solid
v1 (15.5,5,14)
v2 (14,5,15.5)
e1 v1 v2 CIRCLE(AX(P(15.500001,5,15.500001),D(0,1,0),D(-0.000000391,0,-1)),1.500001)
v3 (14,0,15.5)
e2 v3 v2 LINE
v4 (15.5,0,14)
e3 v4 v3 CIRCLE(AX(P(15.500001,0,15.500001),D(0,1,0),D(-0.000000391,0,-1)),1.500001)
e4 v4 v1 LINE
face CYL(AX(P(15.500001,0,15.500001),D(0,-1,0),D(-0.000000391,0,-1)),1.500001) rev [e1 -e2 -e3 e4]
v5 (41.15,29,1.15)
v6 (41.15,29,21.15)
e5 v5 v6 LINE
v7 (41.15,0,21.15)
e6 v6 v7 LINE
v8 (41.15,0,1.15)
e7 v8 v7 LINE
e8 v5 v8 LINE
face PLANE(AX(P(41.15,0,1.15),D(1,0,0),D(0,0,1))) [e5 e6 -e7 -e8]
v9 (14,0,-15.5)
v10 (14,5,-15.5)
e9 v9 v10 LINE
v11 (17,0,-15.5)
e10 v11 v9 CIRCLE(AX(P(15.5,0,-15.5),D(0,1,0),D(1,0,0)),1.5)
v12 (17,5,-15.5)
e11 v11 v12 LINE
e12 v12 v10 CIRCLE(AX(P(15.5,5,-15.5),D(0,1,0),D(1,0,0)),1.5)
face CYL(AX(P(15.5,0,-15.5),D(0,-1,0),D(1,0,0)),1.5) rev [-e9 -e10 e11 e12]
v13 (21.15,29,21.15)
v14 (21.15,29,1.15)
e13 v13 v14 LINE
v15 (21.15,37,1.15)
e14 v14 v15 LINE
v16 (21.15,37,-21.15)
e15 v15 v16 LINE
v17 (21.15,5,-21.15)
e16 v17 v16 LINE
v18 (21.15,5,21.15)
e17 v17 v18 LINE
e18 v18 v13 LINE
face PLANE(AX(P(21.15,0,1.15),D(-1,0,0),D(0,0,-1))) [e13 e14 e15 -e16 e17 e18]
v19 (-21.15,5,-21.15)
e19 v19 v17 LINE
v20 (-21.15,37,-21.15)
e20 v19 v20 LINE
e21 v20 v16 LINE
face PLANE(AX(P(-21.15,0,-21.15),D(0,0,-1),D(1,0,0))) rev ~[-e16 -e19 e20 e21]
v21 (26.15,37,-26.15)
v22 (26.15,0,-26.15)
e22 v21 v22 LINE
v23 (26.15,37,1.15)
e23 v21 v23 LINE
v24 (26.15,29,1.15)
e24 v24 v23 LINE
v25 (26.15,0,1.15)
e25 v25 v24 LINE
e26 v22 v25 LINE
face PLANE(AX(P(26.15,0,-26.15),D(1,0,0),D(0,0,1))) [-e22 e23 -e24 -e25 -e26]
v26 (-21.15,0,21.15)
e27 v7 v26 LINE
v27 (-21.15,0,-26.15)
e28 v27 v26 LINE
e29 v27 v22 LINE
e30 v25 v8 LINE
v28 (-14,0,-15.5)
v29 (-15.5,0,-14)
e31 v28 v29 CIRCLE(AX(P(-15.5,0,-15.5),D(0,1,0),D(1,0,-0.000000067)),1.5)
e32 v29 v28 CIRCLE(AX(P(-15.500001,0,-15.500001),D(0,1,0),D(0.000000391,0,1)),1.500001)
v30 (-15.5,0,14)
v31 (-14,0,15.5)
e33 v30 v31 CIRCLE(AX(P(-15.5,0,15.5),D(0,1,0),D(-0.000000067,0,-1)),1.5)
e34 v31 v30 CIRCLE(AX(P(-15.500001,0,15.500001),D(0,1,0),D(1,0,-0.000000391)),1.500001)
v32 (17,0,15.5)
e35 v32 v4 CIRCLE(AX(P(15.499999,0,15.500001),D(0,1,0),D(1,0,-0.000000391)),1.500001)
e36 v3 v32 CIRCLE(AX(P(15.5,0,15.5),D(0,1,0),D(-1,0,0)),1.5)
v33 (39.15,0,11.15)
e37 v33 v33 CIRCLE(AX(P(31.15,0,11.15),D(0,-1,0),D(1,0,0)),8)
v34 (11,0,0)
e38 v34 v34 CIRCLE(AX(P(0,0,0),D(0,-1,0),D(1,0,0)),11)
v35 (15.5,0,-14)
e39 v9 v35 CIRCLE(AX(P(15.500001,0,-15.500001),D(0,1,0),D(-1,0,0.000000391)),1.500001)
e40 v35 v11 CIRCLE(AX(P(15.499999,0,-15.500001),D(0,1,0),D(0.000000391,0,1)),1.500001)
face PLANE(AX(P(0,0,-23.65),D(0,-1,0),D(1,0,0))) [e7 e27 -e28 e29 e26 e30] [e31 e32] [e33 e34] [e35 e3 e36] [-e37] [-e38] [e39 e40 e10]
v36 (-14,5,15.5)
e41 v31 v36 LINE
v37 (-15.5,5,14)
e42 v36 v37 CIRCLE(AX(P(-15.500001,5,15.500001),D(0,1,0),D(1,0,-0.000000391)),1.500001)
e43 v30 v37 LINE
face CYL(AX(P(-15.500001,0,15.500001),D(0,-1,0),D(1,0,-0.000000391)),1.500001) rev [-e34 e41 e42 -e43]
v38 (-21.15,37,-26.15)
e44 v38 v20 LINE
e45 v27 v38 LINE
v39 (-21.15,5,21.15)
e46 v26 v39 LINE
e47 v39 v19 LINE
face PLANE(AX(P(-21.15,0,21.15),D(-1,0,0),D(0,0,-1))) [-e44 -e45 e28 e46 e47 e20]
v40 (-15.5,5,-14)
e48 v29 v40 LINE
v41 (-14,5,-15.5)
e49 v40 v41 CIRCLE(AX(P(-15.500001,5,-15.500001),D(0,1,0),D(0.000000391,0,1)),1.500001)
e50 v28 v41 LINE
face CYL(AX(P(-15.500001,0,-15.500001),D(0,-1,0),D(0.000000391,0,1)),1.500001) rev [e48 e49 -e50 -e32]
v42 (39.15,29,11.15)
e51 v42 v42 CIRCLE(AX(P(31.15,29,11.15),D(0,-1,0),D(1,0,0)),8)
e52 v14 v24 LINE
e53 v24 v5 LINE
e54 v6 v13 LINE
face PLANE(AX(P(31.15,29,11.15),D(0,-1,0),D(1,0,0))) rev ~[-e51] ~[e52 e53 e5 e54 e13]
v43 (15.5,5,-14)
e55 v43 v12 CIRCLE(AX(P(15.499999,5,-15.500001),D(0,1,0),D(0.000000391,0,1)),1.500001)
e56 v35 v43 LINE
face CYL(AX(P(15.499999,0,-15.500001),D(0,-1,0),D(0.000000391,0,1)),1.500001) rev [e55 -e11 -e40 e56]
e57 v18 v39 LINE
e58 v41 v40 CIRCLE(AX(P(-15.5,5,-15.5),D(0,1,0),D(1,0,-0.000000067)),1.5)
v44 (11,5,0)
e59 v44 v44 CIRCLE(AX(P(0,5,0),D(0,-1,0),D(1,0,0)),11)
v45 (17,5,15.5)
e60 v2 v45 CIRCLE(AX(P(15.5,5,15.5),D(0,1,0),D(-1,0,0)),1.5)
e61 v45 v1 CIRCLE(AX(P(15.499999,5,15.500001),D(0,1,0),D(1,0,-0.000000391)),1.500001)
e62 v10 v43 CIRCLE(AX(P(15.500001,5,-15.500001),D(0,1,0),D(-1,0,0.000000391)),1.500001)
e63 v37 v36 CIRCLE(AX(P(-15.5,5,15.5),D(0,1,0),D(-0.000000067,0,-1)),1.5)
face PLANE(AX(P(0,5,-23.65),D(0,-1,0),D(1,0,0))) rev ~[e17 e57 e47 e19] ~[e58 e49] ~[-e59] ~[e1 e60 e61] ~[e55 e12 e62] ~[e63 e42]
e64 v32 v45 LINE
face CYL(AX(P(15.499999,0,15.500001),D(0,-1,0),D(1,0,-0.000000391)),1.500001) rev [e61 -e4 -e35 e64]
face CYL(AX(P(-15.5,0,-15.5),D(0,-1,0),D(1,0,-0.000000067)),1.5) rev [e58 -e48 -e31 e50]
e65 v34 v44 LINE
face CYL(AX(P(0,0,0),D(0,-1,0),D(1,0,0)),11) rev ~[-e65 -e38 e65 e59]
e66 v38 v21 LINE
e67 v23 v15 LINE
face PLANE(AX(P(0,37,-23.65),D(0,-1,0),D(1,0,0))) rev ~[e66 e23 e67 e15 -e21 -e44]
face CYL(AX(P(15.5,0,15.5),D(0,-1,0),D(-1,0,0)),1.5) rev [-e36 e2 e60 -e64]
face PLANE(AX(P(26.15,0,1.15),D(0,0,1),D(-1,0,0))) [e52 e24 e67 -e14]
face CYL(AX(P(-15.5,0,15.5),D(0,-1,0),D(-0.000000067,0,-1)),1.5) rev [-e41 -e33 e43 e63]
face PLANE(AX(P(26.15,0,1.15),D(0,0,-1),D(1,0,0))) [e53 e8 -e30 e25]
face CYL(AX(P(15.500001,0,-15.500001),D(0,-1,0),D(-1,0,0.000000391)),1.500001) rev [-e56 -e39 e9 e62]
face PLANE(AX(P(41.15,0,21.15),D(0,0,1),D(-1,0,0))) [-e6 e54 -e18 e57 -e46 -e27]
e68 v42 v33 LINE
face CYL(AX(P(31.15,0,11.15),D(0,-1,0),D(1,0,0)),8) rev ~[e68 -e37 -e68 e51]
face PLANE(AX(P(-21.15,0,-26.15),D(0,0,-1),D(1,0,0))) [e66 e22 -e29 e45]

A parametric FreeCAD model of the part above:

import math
import FreeCAD as App
import Part
import Sketcher

V = App.Vector
Q = App.Units.Quantity


def add_polygon(sketch, points):
    """Adds a closed chain of lines whose ends are joined by coincident constraints."""
    first, n = sketch.GeometryCount, len(points)
    for a, b in zip(points, points[1:] + points[:1]):
        sketch.addGeometry(Part.LineSegment(App.Vector(*a, 0), App.Vector(*b, 0)), False)
    for i in range(n):
        sketch.addConstraint(Sketcher.Constraint("Coincident", first + i, 2, first + (i + 1) % n, 1))

doc = App.newDocument("Part")
body = doc.addObject("PartDesign::Body", "Body")

# Sketch on XZ plane
sketch1 = doc.addObject("Sketcher::SketchObject", "Sketch")
body.addObject(sketch1)
sketch1.AttachmentSupport = (doc.XZ_Plane, [""])
sketch1.MapMode = "FlatFace"
add_polygon(sketch1, [(-21.15, -26.15), (26.15, -26.15), (26.15, 1.15), (41.15, 1.15), (41.15, 21.15), (-21.15, 21.15)])  # lines 0-5
sketch1.addGeometry(Part.ArcOfCircle(Part.Circle(V(-15.5, -15.5, 0), V(0, 0, 1), 1.5), math.radians(90.000004), math.radians(359.999996)), False)  # 6
sketch1.addGeometry(Part.ArcOfCircle(Part.Circle(V(-15.500001, -15.500001, 0), V(0, 0, 1), 1.500001), math.radians(0.000022), math.radians(89.999978)), False)  # 7
sketch1.addGeometry(Part.Circle(V(0, 0, 0), V(0, 0, 1), 11), False)  # 8
sketch1.addGeometry(Part.ArcOfCircle(Part.Circle(V(15.5, -15.5, 0), V(0, 0, 1), 1.5), math.radians(180), math.radians(360)), False)  # 9
sketch1.addGeometry(Part.ArcOfCircle(Part.Circle(V(15.500001, -15.500001, 0), V(0, 0, 1), 1.500001), math.radians(90.000022), math.radians(179.999978)), False)  # 10
sketch1.addGeometry(Part.ArcOfCircle(Part.Circle(V(15.499999, -15.500001, 0), V(0, 0, 1), 1.500001), math.radians(0.000022), math.radians(89.999978)), False)  # 11
sketch1.addGeometry(Part.ArcOfCircle(Part.Circle(V(-15.5, 15.5, 0), V(0, 0, 1), 1.5), math.radians(0.000004), math.radians(269.999996)), False)  # 12
sketch1.addGeometry(Part.ArcOfCircle(Part.Circle(V(-15.500001, 15.500001, 0), V(0, 0, 1), 1.500001), math.radians(-89.999978), math.radians(-0.000022)), False)  # 13
sketch1.addGeometry(Part.ArcOfCircle(Part.Circle(V(15.499999, 15.500001, 0), V(0, 0, 1), 1.500001), math.radians(-89.999978), math.radians(-0.000022)), False)  # 14
sketch1.addGeometry(Part.ArcOfCircle(Part.Circle(V(15.500001, 15.500001, 0), V(0, 0, 1), 1.500001), math.radians(-179.999978), math.radians(-90.000022)), False)  # 15
sketch1.addGeometry(Part.ArcOfCircle(Part.Circle(V(15.5, 15.5, 0), V(0, 0, 1), 1.5), math.radians(0), math.radians(180)), False)  # 16
sketch1.addGeometry(Part.Circle(V(31.15, 11.15, 0), V(0, 0, 1), 8), False)  # 17
sketch1.addConstraint([
    Sketcher.Constraint("Tangent", 6, 1, 7, 2),
    Sketcher.Constraint("Coincident", 7, 1, 6, 2),
    Sketcher.Constraint("Tangent", 9, 1, 10, 2),
    Sketcher.Constraint("Tangent", 10, 1, 11, 2),
    Sketcher.Constraint("Tangent", 11, 1, 9, 2),
    Sketcher.Constraint("Tangent", 12, 1, 13, 2),
    Sketcher.Constraint("Coincident", 13, 1, 12, 2),
    Sketcher.Constraint("Tangent", 14, 1, 15, 2),
    Sketcher.Constraint("Tangent", 15, 1, 16, 2),
    Sketcher.Constraint("Tangent", 16, 1, 14, 2),
    Sketcher.Constraint("Horizontal", 0),
    Sketcher.Constraint("Vertical", 1),
    Sketcher.Constraint("Horizontal", 2),
    Sketcher.Constraint("Vertical", 3),
    Sketcher.Constraint("Horizontal", 4),
    Sketcher.Constraint("Vertical", 5),
    Sketcher.Constraint("Coincident", 8, 3, -1, 1),
    Sketcher.Constraint("Equal", 7, 9),
    Sketcher.Constraint("Equal", 11, 12),
    Sketcher.Constraint("Equal", 13, 14),
    Sketcher.Constraint("Symmetric", 9, 3, 12, 3, -1, 1),
    Sketcher.Constraint("Symmetric", 6, 3, 14, 3, -1, 1),
    Sketcher.Constraint("Symmetric", 6, 3, 9, 3, -2),
    Sketcher.Constraint("Horizontal", 11, 3, 7, 1),
    Sketcher.Constraint("Horizontal", 7, 1, 9, 1),
    Sketcher.Constraint("Horizontal", 9, 1, 11, 1),
    Sketcher.Constraint("Horizontal", 16, 3, 12, 1),
    Sketcher.Constraint("Horizontal", 12, 1, 15, 1),
    Sketcher.Constraint("Horizontal", 15, 1, 16, 1),
    Sketcher.Constraint("Vertical", 13, 3, 6, 1),
    Sketcher.Constraint("Vertical", 16, 3, 10, 1),
    Sketcher.Constraint("Vertical", 6, 1, 13, 1),
    Sketcher.Constraint("Vertical", 10, 1, 14, 1),
    Sketcher.Constraint("Equal", 0, 5),
    Sketcher.Constraint("Diameter", 8, Q("22 mm")),
    Sketcher.Constraint("Diameter", 17, Q("16 mm")),
    Sketcher.Constraint("Radius", 6, Q("1.5 mm")),
    Sketcher.Constraint("DistanceX", 2, 1, 2, 2, Q("15 mm")),
    Sketcher.Constraint("DistanceY", 3, 1, 3, 2, Q("20 mm")),
    Sketcher.Constraint("DistanceX", 0, 1, 0, 2, Q("47.3 mm")),
    Sketcher.Constraint("DistanceY", 6, 1, -1, 1, Q("14 mm")),
    Sketcher.Constraint("DistanceX", 7, 1, -1, 1, Q("14 mm")),
    Sketcher.Constraint("DistanceX", 0, 2, 17, 3, Q("5 mm")),
    Sketcher.Constraint("DistanceY", 1, 2, 17, 3, Q("10 mm")),
    Sketcher.Constraint("DistanceX", -1, 1, 17, 3, Q("31.15 mm")),
    Sketcher.Constraint("DistanceY", -1, 1, 17, 3, Q("11.15 mm")),
])
pad1 = doc.addObject("PartDesign::Pad", "Pad")
body.addObject(pad1)
pad1.Profile = sketch1
pad1.Length = 5
pad1.Reversed = True

# Sketch on XZ plane
sketch2 = doc.addObject("Sketcher::SketchObject", "Sketch001")
body.addObject(sketch2)
sketch2.AttachmentSupport = (doc.XZ_Plane, [""])
sketch2.MapMode = "FlatFace"
add_polygon(sketch2, [(-21.15, -21.15), (-21.15, -26.15), (26.15, -26.15), (26.15, 1.15), (21.15, 1.15), (21.15, -21.15)])  # lines 0-5
sketch2.addConstraint([
    Sketcher.Constraint("Vertical", 0),
    Sketcher.Constraint("Horizontal", 1),
    Sketcher.Constraint("Vertical", 2),
    Sketcher.Constraint("Horizontal", 3),
    Sketcher.Constraint("Vertical", 4),
    Sketcher.Constraint("Horizontal", 5),
    Sketcher.Constraint("Equal", 3, 0),
    Sketcher.Constraint("DistanceX", 3, 2, 3, 1, Q("5 mm")),
    Sketcher.Constraint("DistanceX", 1, 1, 1, 2, Q("47.3 mm")),
    Sketcher.Constraint("DistanceY", 2, 1, 2, 2, Q("27.3 mm")),
    Sketcher.Constraint("DistanceX", 0, 2, -1, 1, Q("21.15 mm")),
    Sketcher.Constraint("DistanceY", 0, 2, -1, 1, Q("26.15 mm")),
])
pad2 = doc.addObject("PartDesign::Pad", "Pad001")
body.addObject(pad2)
pad2.Profile = sketch2
pad2.Length = 37
pad2.Reversed = True

# Sketch on XZ plane
sketch3 = doc.addObject("Sketcher::SketchObject", "Sketch002")
body.addObject(sketch3)
sketch3.AttachmentSupport = (doc.XZ_Plane, [""])
sketch3.MapMode = "FlatFace"
add_polygon(sketch3, [(21.15, 1.15), (41.15, 1.15), (41.15, 21.15), (21.15, 21.15)])  # lines 0-3
sketch3.addGeometry(Part.Circle(V(31.15, 11.15, 0), V(0, 0, 1), 8), False)  # 4
sketch3.addConstraint([
    Sketcher.Constraint("Horizontal", 0),
    Sketcher.Constraint("Vertical", 1),
    Sketcher.Constraint("Horizontal", 2),
    Sketcher.Constraint("Vertical", 3),
    Sketcher.Constraint("Equal", 2, 1),
    Sketcher.Constraint("Diameter", 4, Q("16 mm")),
    Sketcher.Constraint("DistanceX", 0, 1, 0, 2, Q("20 mm")),
    Sketcher.Constraint("DistanceX", 4, 3, 0, 2, Q("10 mm")),
    Sketcher.Constraint("DistanceY", 0, 2, 4, 3, Q("10 mm")),
    Sketcher.Constraint("DistanceX", -1, 1, 4, 3, Q("31.15 mm")),
    Sketcher.Constraint("DistanceY", -1, 1, 4, 3, Q("11.15 mm")),
])
pad3 = doc.addObject("PartDesign::Pad", "Pad002")
body.addObject(pad3)
pad3.Profile = sketch3
pad3.Length = 29
pad3.Reversed = True

doc.recompute()
